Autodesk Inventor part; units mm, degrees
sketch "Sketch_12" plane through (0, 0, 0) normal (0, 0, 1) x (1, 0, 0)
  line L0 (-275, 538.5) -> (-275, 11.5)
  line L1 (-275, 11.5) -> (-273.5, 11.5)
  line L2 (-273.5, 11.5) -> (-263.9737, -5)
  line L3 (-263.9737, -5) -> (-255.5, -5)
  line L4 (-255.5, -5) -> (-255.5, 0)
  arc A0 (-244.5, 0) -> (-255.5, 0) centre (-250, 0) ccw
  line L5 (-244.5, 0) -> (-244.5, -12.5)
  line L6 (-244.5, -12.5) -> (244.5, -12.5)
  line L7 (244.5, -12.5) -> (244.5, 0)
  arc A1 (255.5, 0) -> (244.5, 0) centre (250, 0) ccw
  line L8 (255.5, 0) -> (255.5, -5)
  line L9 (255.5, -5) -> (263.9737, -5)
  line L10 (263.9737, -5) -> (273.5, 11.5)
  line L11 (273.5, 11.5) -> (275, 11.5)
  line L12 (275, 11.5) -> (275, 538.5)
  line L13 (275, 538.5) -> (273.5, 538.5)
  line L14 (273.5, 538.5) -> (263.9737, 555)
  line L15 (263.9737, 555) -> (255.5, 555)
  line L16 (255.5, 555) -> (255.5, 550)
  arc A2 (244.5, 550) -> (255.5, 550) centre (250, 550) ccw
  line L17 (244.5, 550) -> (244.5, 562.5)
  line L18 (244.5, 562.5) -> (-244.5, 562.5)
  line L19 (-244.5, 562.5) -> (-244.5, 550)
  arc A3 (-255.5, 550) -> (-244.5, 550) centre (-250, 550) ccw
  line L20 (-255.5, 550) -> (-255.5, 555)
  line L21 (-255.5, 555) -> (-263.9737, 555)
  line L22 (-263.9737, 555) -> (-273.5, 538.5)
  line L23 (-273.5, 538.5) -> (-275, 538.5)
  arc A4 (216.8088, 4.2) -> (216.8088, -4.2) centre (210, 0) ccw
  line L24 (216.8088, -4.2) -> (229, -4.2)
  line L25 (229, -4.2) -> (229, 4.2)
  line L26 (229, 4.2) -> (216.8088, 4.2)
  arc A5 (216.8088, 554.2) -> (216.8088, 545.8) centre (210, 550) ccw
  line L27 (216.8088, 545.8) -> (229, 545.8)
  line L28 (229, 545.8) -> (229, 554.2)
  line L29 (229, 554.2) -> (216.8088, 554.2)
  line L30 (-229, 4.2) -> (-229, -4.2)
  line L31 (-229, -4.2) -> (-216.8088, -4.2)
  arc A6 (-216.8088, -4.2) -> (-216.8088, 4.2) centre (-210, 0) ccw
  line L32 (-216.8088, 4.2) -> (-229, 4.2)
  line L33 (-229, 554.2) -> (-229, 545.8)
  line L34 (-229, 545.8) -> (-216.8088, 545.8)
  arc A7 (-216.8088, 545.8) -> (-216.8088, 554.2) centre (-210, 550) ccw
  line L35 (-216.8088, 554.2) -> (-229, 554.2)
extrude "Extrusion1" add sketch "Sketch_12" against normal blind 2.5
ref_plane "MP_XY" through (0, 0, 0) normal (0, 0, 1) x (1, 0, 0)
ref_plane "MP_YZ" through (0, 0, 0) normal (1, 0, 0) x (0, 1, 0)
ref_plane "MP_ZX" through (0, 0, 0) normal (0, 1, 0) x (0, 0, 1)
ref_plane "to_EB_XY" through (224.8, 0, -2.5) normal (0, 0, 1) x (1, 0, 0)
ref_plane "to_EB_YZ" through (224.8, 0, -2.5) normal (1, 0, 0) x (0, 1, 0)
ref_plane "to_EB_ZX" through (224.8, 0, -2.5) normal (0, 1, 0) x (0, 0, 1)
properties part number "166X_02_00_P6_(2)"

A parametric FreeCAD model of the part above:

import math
import FreeCAD as App
import Part
import Sketcher
Q = App.Units.Quantity

doc = App.newDocument("Part")
body = doc.addObject("PartDesign::Body", "Body")

sketch1 = body.newObject("Sketcher::SketchObject", "Sketch")
sketch1.AttachmentSupport = (doc.getObject("XY_Plane"), [""])
sketch1.MapMode = "FlatFace"
sketch1.addGeometry(Part.LineSegment(App.Vector(-273.5, 538.5, 0), App.Vector(-275, 538.5, 0)), False)
sketch1.addGeometry(Part.LineSegment(App.Vector(-275, 538.5, 0), App.Vector(-275, 11.5, 0)), False)
sketch1.addGeometry(Part.LineSegment(App.Vector(-275, 11.5, 0), App.Vector(-273.5, 11.5, 0)), False)
sketch1.addGeometry(Part.LineSegment(App.Vector(-273.5, 11.5, 0), App.Vector(-263.9737, -5, 0)), False)
sketch1.addGeometry(Part.LineSegment(App.Vector(-263.9737, -5, 0), App.Vector(-255.5, -5, 0)), False)
sketch1.addGeometry(Part.LineSegment(App.Vector(-255.5, -5, 0), App.Vector(-255.5, 0, 0)), False)
sketch1.addGeometry(Part.ArcOfCircle(Part.Circle(App.Vector(-250, 0, 0), App.Vector(0, 0, 1), 5.5), math.radians(0), math.radians(180)), False)
sketch1.addGeometry(Part.LineSegment(App.Vector(-244.5, 0, 0), App.Vector(-244.5, -12.5, 0)), False)
sketch1.addGeometry(Part.LineSegment(App.Vector(-244.5, -12.5, 0), App.Vector(244.5, -12.5, 0)), False)
sketch1.addGeometry(Part.LineSegment(App.Vector(244.5, -12.5, 0), App.Vector(244.5, 0, 0)), False)
sketch1.addGeometry(Part.ArcOfCircle(Part.Circle(App.Vector(250, 0, 0), App.Vector(0, 0, 1), 5.5), math.radians(0), math.radians(180)), False)
sketch1.addGeometry(Part.LineSegment(App.Vector(255.5, 0, 0), App.Vector(255.5, -5, 0)), False)
sketch1.addGeometry(Part.LineSegment(App.Vector(255.5, -5, 0), App.Vector(263.9737, -5, 0)), False)
sketch1.addGeometry(Part.LineSegment(App.Vector(263.9737, -5, 0), App.Vector(273.5, 11.5, 0)), False)
sketch1.addGeometry(Part.LineSegment(App.Vector(273.5, 11.5, 0), App.Vector(275, 11.5, 0)), False)
sketch1.addGeometry(Part.LineSegment(App.Vector(275, 11.5, 0), App.Vector(275, 538.5, 0)), False)
sketch1.addGeometry(Part.LineSegment(App.Vector(275, 538.5, 0), App.Vector(273.5, 538.5, 0)), False)
sketch1.addGeometry(Part.LineSegment(App.Vector(273.5, 538.5, 0), App.Vector(263.9737, 555, 0)), False)
sketch1.addGeometry(Part.LineSegment(App.Vector(263.9737, 555, 0), App.Vector(255.5, 555, 0)), False)
sketch1.addGeometry(Part.LineSegment(App.Vector(255.5, 555, 0), App.Vector(255.5, 550, 0)), False)
sketch1.addGeometry(Part.ArcOfCircle(Part.Circle(App.Vector(250, 550, 0), App.Vector(0, 0, 1), 5.5), math.radians(180), math.radians(360)), False)
sketch1.addGeometry(Part.LineSegment(App.Vector(244.5, 550, 0), App.Vector(244.5, 562.5, 0)), False)
sketch1.addGeometry(Part.LineSegment(App.Vector(244.5, 562.5, 0), App.Vector(-244.5, 562.5, 0)), False)
sketch1.addGeometry(Part.LineSegment(App.Vector(-244.5, 562.5, 0), App.Vector(-244.5, 550, 0)), False)
sketch1.addGeometry(Part.ArcOfCircle(Part.Circle(App.Vector(-250, 550, 0), App.Vector(0, 0, 1), 5.5), math.radians(180), math.radians(360)), False)
sketch1.addGeometry(Part.LineSegment(App.Vector(-255.5, 550, 0), App.Vector(-255.5, 555, 0)), False)
sketch1.addGeometry(Part.LineSegment(App.Vector(-255.5, 555, 0), App.Vector(-263.9737, 555, 0)), False)
sketch1.addGeometry(Part.LineSegment(App.Vector(-263.9737, 555, 0), App.Vector(-273.5, 538.5, 0)), False)
sketch1.addGeometry(Part.LineSegment(App.Vector(-229, -4.2, 0), App.Vector(-229, 4.2, 0)), False)
sketch1.addGeometry(Part.LineSegment(App.Vector(-229, 4.2, 0), App.Vector(-216.8088, 4.2, 0)), False)
sketch1.addGeometry(Part.ArcOfCircle(Part.Circle(App.Vector(-210, 0, 0), App.Vector(0, 0, 1), 7.999985), math.radians(-148.33169), math.radians(148.33169)), False)
sketch1.addGeometry(Part.LineSegment(App.Vector(-216.8088, -4.2, 0), App.Vector(-229, -4.2, 0)), False)
sketch1.addGeometry(Part.ArcOfCircle(Part.Circle(App.Vector(210, 0, 0), App.Vector(0, 0, 1), 7.999985), math.radians(31.66831), math.radians(328.33169)), False)
sketch1.addGeometry(Part.LineSegment(App.Vector(216.8088, 4.2, 0), App.Vector(229, 4.2, 0)), False)
sketch1.addGeometry(Part.LineSegment(App.Vector(229, 4.2, 0), App.Vector(229, -4.2, 0)), False)
sketch1.addGeometry(Part.LineSegment(App.Vector(229, -4.2, 0), App.Vector(216.8088, -4.2, 0)), False)
sketch1.addGeometry(Part.LineSegment(App.Vector(-229, 545.8, 0), App.Vector(-229, 554.2, 0)), False)
sketch1.addGeometry(Part.LineSegment(App.Vector(-229, 554.2, 0), App.Vector(-216.8088, 554.2, 0)), False)
sketch1.addGeometry(Part.ArcOfCircle(Part.Circle(App.Vector(-210, 550, 0), App.Vector(0, 0, 1), 7.999985), math.radians(-148.33169), math.radians(148.33169)), False)
sketch1.addGeometry(Part.LineSegment(App.Vector(-216.8088, 545.8, 0), App.Vector(-229, 545.8, 0)), False)
sketch1.addGeometry(Part.ArcOfCircle(Part.Circle(App.Vector(210, 550, 0), App.Vector(0, 0, 1), 7.999985), math.radians(31.66831), math.radians(328.33169)), False)
sketch1.addGeometry(Part.LineSegment(App.Vector(216.8088, 554.2, 0), App.Vector(229, 554.2, 0)), False)
sketch1.addGeometry(Part.LineSegment(App.Vector(229, 554.2, 0), App.Vector(229, 545.8, 0)), False)
sketch1.addGeometry(Part.LineSegment(App.Vector(229, 545.8, 0), App.Vector(216.8088, 545.8, 0)), False)
sketch1.addConstraint(Sketcher.Constraint("Coincident", 0, 2, 1, 1))
sketch1.addConstraint(Sketcher.Constraint("Coincident", 1, 2, 2, 1))
sketch1.addConstraint(Sketcher.Constraint("Coincident", 2, 2, 3, 1))
sketch1.addConstraint(Sketcher.Constraint("Coincident", 3, 2, 4, 1))
sketch1.addConstraint(Sketcher.Constraint("Coincident", 4, 2, 5, 1))
sketch1.addConstraint(Sketcher.Constraint("Tangent", 5, 2, 6, 2))
sketch1.addConstraint(Sketcher.Constraint("Tangent", 6, 1, 7, 1))
sketch1.addConstraint(Sketcher.Constraint("Coincident", 7, 2, 8, 1))
sketch1.addConstraint(Sketcher.Constraint("Coincident", 8, 2, 9, 1))
sketch1.addConstraint(Sketcher.Constraint("Tangent", 9, 2, 10, 2))
sketch1.addConstraint(Sketcher.Constraint("Tangent", 10, 1, 11, 1))
sketch1.addConstraint(Sketcher.Constraint("Coincident", 11, 2, 12, 1))
sketch1.addConstraint(Sketcher.Constraint("Coincident", 12, 2, 13, 1))
sketch1.addConstraint(Sketcher.Constraint("Coincident", 13, 2, 14, 1))
sketch1.addConstraint(Sketcher.Constraint("Coincident", 14, 2, 15, 1))
sketch1.addConstraint(Sketcher.Constraint("Coincident", 15, 2, 16, 1))
sketch1.addConstraint(Sketcher.Constraint("Coincident", 16, 2, 17, 1))
sketch1.addConstraint(Sketcher.Constraint("Coincident", 17, 2, 18, 1))
sketch1.addConstraint(Sketcher.Constraint("Coincident", 18, 2, 19, 1))
sketch1.addConstraint(Sketcher.Constraint("Tangent", 19, 2, 20, 2))
sketch1.addConstraint(Sketcher.Constraint("Tangent", 20, 1, 21, 1))
sketch1.addConstraint(Sketcher.Constraint("Coincident", 21, 2, 22, 1))
sketch1.addConstraint(Sketcher.Constraint("Coincident", 22, 2, 23, 1))
sketch1.addConstraint(Sketcher.Constraint("Tangent", 23, 2, 24, 2))
sketch1.addConstraint(Sketcher.Constraint("Tangent", 24, 1, 25, 1))
sketch1.addConstraint(Sketcher.Constraint("Coincident", 25, 2, 26, 1))
sketch1.addConstraint(Sketcher.Constraint("Coincident", 26, 2, 27, 1))
sketch1.addConstraint(Sketcher.Constraint("Coincident", 27, 2, 0, 1))
sketch1.addConstraint(Sketcher.Constraint("Coincident", 28, 2, 29, 1))
sketch1.addConstraint(Sketcher.Constraint("Coincident", 29, 2, 30, 2))
sketch1.addConstraint(Sketcher.Constraint("Coincident", 30, 1, 31, 1))
sketch1.addConstraint(Sketcher.Constraint("Coincident", 31, 2, 28, 1))
sketch1.addConstraint(Sketcher.Constraint("Coincident", 32, 1, 33, 1))
sketch1.addConstraint(Sketcher.Constraint("Coincident", 33, 2, 34, 1))
sketch1.addConstraint(Sketcher.Constraint("Coincident", 34, 2, 35, 1))
sketch1.addConstraint(Sketcher.Constraint("Coincident", 35, 2, 32, 2))
sketch1.addConstraint(Sketcher.Constraint("Coincident", 36, 2, 37, 1))
sketch1.addConstraint(Sketcher.Constraint("Coincident", 37, 2, 38, 2))
sketch1.addConstraint(Sketcher.Constraint("Coincident", 38, 1, 39, 1))
sketch1.addConstraint(Sketcher.Constraint("Coincident", 39, 2, 36, 1))
sketch1.addConstraint(Sketcher.Constraint("Coincident", 40, 1, 41, 1))
sketch1.addConstraint(Sketcher.Constraint("Coincident", 41, 2, 42, 1))
sketch1.addConstraint(Sketcher.Constraint("Coincident", 42, 2, 43, 1))
sketch1.addConstraint(Sketcher.Constraint("Coincident", 43, 2, 40, 2))
sketch1.addConstraint(Sketcher.Constraint("Horizontal", 0))
sketch1.addConstraint(Sketcher.Constraint("Vertical", 1))
sketch1.addConstraint(Sketcher.Constraint("Horizontal", 2))
sketch1.addConstraint(Sketcher.Constraint("Horizontal", 4))
sketch1.addConstraint(Sketcher.Constraint("Vertical", 5))
sketch1.addConstraint(Sketcher.Constraint("Vertical", 7))
sketch1.addConstraint(Sketcher.Constraint("Horizontal", 8))
sketch1.addConstraint(Sketcher.Constraint("Vertical", 9))
sketch1.addConstraint(Sketcher.Constraint("Vertical", 11))
sketch1.addConstraint(Sketcher.Constraint("Horizontal", 12))
sketch1.addConstraint(Sketcher.Constraint("Horizontal", 14))
sketch1.addConstraint(Sketcher.Constraint("Vertical", 15))
sketch1.addConstraint(Sketcher.Constraint("Horizontal", 16))
sketch1.addConstraint(Sketcher.Constraint("Horizontal", 18))
sketch1.addConstraint(Sketcher.Constraint("Vertical", 19))
sketch1.addConstraint(Sketcher.Constraint("Vertical", 21))
sketch1.addConstraint(Sketcher.Constraint("Horizontal", 22))
sketch1.addConstraint(Sketcher.Constraint("Vertical", 23))
sketch1.addConstraint(Sketcher.Constraint("Vertical", 25))
sketch1.addConstraint(Sketcher.Constraint("Horizontal", 26))
sketch1.addConstraint(Sketcher.Constraint("Vertical", 28))
sketch1.addConstraint(Sketcher.Constraint("Horizontal", 29))
sketch1.addConstraint(Sketcher.Constraint("Horizontal", 31))
sketch1.addConstraint(Sketcher.Constraint("Horizontal", 33))
sketch1.addConstraint(Sketcher.Constraint("Vertical", 34))
sketch1.addConstraint(Sketcher.Constraint("Horizontal", 35))
sketch1.addConstraint(Sketcher.Constraint("Vertical", 36))
sketch1.addConstraint(Sketcher.Constraint("Horizontal", 37))
sketch1.addConstraint(Sketcher.Constraint("Horizontal", 39))
sketch1.addConstraint(Sketcher.Constraint("Horizontal", 41))
sketch1.addConstraint(Sketcher.Constraint("Vertical", 42))
sketch1.addConstraint(Sketcher.Constraint("Horizontal", 43))
sketch1.addConstraint(Sketcher.Constraint("Equal", 6, 10))
sketch1.addConstraint(Sketcher.Constraint("Equal", 10, 20))
sketch1.addConstraint(Sketcher.Constraint("Equal", 20, 24))
sketch1.addConstraint(Sketcher.Constraint("Equal", 30, 32))
sketch1.addConstraint(Sketcher.Constraint("Equal", 32, 38))
sketch1.addConstraint(Sketcher.Constraint("Equal", 38, 40))
sketch1.addConstraint(Sketcher.Constraint("Symmetric", 6, 3, 10, 3, -1, 1))
sketch1.addConstraint(Sketcher.Constraint("Symmetric", 30, 3, 32, 3, -1, 1))
sketch1.addConstraint(Sketcher.Constraint("Symmetric", 31, 2, 33, 2, -1, 1))
sketch1.addConstraint(Sketcher.Constraint("Symmetric", 20, 3, 24, 3, -2))
sketch1.addConstraint(Sketcher.Constraint("Symmetric", 38, 3, 40, 3, -2))
sketch1.addConstraint(Sketcher.Constraint("Symmetric", 3, 2, 12, 2, -2))
sketch1.addConstraint(Sketcher.Constraint("Symmetric", 2, 2, 13, 2, -2))
sketch1.addConstraint(Sketcher.Constraint("Symmetric", 0, 2, 15, 2, -2))
sketch1.addConstraint(Sketcher.Constraint("Symmetric", 17, 2, 26, 2, -2))
sketch1.addConstraint(Sketcher.Constraint("Symmetric", 29, 2, 32, 1, -2))
sketch1.addConstraint(Sketcher.Constraint("Symmetric", 36, 2, 41, 2, -2))
sketch1.addConstraint(Sketcher.Constraint("PointOnObject", 6, 3, -1))
sketch1.addConstraint(Sketcher.Constraint("Parallel", 3, 17))
sketch1.addConstraint(Sketcher.Constraint("Parallel", 13, 27))
sketch1.addConstraint(Sketcher.Constraint("Horizontal", 24, 3, 38, 3))
sketch1.addConstraint(Sketcher.Constraint("Horizontal", 31, 2, 34, 2))
sketch1.addConstraint(Sketcher.Constraint("Horizontal", 39, 2, 42, 2))
sketch1.addConstraint(Sketcher.Constraint("Vertical", 10, 3, 20, 3))
sketch1.addConstraint(Sketcher.Constraint("Vertical", 30, 3, 38, 3))
sketch1.addConstraint(Sketcher.Constraint("Vertical", 13, 2, 16, 2))
sketch1.addConstraint(Sketcher.Constraint("Vertical", 12, 2, 17, 2))
sketch1.addConstraint(Sketcher.Constraint("Vertical", 31, 2, 36, 2))
sketch1.addConstraint(Sketcher.Constraint("Vertical", 30, 1, 37, 2))
sketch1.addConstraint(Sketcher.Constraint("Vertical", 37, 2, 38, 1))
sketch1.addConstraint(Sketcher.Constraint("Equal", 11, 19))
sketch1.addConstraint(Sketcher.Constraint("Equal", 9, 21))
sketch1.addConstraint(Sketcher.Constraint("Radius", 30, 8.0))
sketch1.addConstraint(Sketcher.Constraint("Radius", 6, 5.5))
sketch1.addConstraint(Sketcher.Constraint("DistanceX", 8, 1, 8, 2, 489.0))
sketch1.addConstraint(Sketcher.Constraint("DistanceY", 1, 2, 1, 1, 527.0))
sketch1.addConstraint(Sketcher.Constraint("DistanceY", 5, 1, 5, 2, 5.0))
sketch1.addConstraint(Sketcher.Constraint("Angle", 3, Q("-60 deg")))
sketch1.addConstraint(Sketcher.Constraint("DistanceX", 0, 2, 0, 1, 1.5))
sketch1.addConstraint(Sketcher.Constraint("DistanceY", 7, 2, 7, 1, 12.5))
sketch1.addConstraint(Sketcher.Constraint("DistanceY", 28, 1, 28, 2, 8.4))
sketch1.addConstraint(Sketcher.Constraint("DistanceY", -1, 1, 20, 3, 550.0))
sketch1.addConstraint(Sketcher.Constraint("DistanceX", 30, 3, -1, 1, 210.0))
sketch1.addConstraint(Sketcher.Constraint("DistanceX", 0, 2, -1, 1, 275.0))
sketch1.addConstraint(Sketcher.Constraint("DistanceX", 28, 2, -1, 1, 229.0))
pad1 = body.newObject("PartDesign::Pad", "Pad")
pad1.Profile = sketch1
pad1.Length = 2.5
pad1.Reversed = True

doc.recompute()
